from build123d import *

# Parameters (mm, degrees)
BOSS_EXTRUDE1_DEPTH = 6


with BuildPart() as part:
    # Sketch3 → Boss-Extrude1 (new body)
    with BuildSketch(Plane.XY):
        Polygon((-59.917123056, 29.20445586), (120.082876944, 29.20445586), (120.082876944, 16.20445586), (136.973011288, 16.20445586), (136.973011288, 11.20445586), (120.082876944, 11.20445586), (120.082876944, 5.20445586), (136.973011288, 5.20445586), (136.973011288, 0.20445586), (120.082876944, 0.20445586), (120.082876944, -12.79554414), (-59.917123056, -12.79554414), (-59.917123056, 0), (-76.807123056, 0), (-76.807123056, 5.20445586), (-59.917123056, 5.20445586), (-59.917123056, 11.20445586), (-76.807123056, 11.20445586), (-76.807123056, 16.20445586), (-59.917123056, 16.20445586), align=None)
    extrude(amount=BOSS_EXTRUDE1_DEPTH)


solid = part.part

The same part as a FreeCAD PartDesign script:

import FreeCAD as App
import Part
import Sketcher

V = App.Vector
Q = App.Units.Quantity

doc = App.newDocument("Part")
body = doc.addObject("PartDesign::Body", "Body")

# Sketch on XY plane
sketch1 = doc.addObject("Sketcher::SketchObject", "Sketch")
body.addObject(sketch1)
sketch1.AttachmentSupport = (doc.XY_Plane, [""])
sketch1.MapMode = "FlatFace"
sketch1.addGeometry(Part.LineSegment(V(120.082877, 29.204456, 0), V(-59.917123, 29.204456, 0)), False)
sketch1.addGeometry(Part.LineSegment(V(-59.917123, 29.204456, 0), V(-59.917123, 16.204456, 0)), False)
sketch1.addGeometry(Part.LineSegment(V(-59.917123, 16.204456, 0), V(-76.807123, 16.204456, 0)), False)
sketch1.addGeometry(Part.LineSegment(V(-76.807123, 16.204456, 0), V(-76.807123, 11.204456, 0)), False)
sketch1.addGeometry(Part.LineSegment(V(-76.807123, 11.204456, 0), V(-59.917123, 11.204456, 0)), False)
sketch1.addGeometry(Part.LineSegment(V(-59.917123, 11.204456, 0), V(-59.917123, 5.204456, 0)), False)
sketch1.addGeometry(Part.LineSegment(V(-59.917123, 5.204456, 0), V(-76.807123, 5.204456, 0)), False)
sketch1.addGeometry(Part.LineSegment(V(-76.807123, 5.204456, 0), V(-76.807123, 0, 0)), False)
sketch1.addGeometry(Part.LineSegment(V(-76.807123, 0, 0), V(-59.917123, 0, 0)), False)
sketch1.addGeometry(Part.LineSegment(V(-59.917123, 0, 0), V(-59.917123, -12.795544, 0)), False)
sketch1.addGeometry(Part.LineSegment(V(-59.917123, -12.795544, 0), V(120.082877, -12.795544, 0)), False)
sketch1.addGeometry(Part.LineSegment(V(120.082877, -12.795544, 0), V(120.082877, 0.204456, 0)), False)
sketch1.addGeometry(Part.LineSegment(V(120.082877, 0.204456, 0), V(136.973011, 0.204456, 0)), False)
sketch1.addGeometry(Part.LineSegment(V(136.973011, 0.204456, 0), V(136.973011, 5.204456, 0)), False)
sketch1.addGeometry(Part.LineSegment(V(136.973011, 5.204456, 0), V(120.082877, 5.204456, 0)), False)
sketch1.addGeometry(Part.LineSegment(V(120.082877, 5.204456, 0), V(120.082877, 11.204456, 0)), False)
sketch1.addGeometry(Part.LineSegment(V(120.082877, 11.204456, 0), V(136.973011, 11.204456, 0)), False)
sketch1.addGeometry(Part.LineSegment(V(136.973011, 11.204456, 0), V(136.973011, 16.204456, 0)), False)
sketch1.addGeometry(Part.LineSegment(V(136.973011, 16.204456, 0), V(120.082877, 16.204456, 0)), False)
sketch1.addGeometry(Part.LineSegment(V(120.082877, 16.204456, 0), V(120.082877, 29.204456, 0)), False)
sketch1.addConstraint(Sketcher.Constraint("Coincident", 0, 2, 1, 1))
sketch1.addConstraint(Sketcher.Constraint("Coincident", 1, 2, 2, 1))
sketch1.addConstraint(Sketcher.Constraint("Coincident", 2, 2, 3, 1))
sketch1.addConstraint(Sketcher.Constraint("Coincident", 3, 2, 4, 1))
sketch1.addConstraint(Sketcher.Constraint("Coincident", 4, 2, 5, 1))
sketch1.addConstraint(Sketcher.Constraint("Coincident", 5, 2, 6, 1))
sketch1.addConstraint(Sketcher.Constraint("Coincident", 6, 2, 7, 1))
sketch1.addConstraint(Sketcher.Constraint("Coincident", 7, 2, 8, 1))
sketch1.addConstraint(Sketcher.Constraint("Coincident", 8, 2, 9, 1))
sketch1.addConstraint(Sketcher.Constraint("Coincident", 9, 2, 10, 1))
sketch1.addConstraint(Sketcher.Constraint("Coincident", 10, 2, 11, 1))
sketch1.addConstraint(Sketcher.Constraint("Coincident", 11, 2, 12, 1))
sketch1.addConstraint(Sketcher.Constraint("Coincident", 12, 2, 13, 1))
sketch1.addConstraint(Sketcher.Constraint("Coincident", 13, 2, 14, 1))
sketch1.addConstraint(Sketcher.Constraint("Coincident", 14, 2, 15, 1))
sketch1.addConstraint(Sketcher.Constraint("Coincident", 15, 2, 16, 1))
sketch1.addConstraint(Sketcher.Constraint("Coincident", 16, 2, 17, 1))
sketch1.addConstraint(Sketcher.Constraint("Coincident", 17, 2, 18, 1))
sketch1.addConstraint(Sketcher.Constraint("Coincident", 18, 2, 19, 1))
sketch1.addConstraint(Sketcher.Constraint("Coincident", 19, 2, 0, 1))
sketch1.addConstraint(Sketcher.Constraint("Horizontal", 0))
sketch1.addConstraint(Sketcher.Constraint("Vertical", 1))
sketch1.addConstraint(Sketcher.Constraint("Horizontal", 2))
sketch1.addConstraint(Sketcher.Constraint("Vertical", 3))
sketch1.addConstraint(Sketcher.Constraint("Horizontal", 4))
sketch1.addConstraint(Sketcher.Constraint("Vertical", 5))
sketch1.addConstraint(Sketcher.Constraint("Horizontal", 6))
sketch1.addConstraint(Sketcher.Constraint("Vertical", 7))
sketch1.addConstraint(Sketcher.Constraint("Horizontal", 8))
sketch1.addConstraint(Sketcher.Constraint("Vertical", 9))
sketch1.addConstraint(Sketcher.Constraint("Horizontal", 10))
sketch1.addConstraint(Sketcher.Constraint("Vertical", 11))
sketch1.addConstraint(Sketcher.Constraint("Horizontal", 12))
sketch1.addConstraint(Sketcher.Constraint("Vertical", 13))
sketch1.addConstraint(Sketcher.Constraint("Horizontal", 14))
sketch1.addConstraint(Sketcher.Constraint("Vertical", 15))
sketch1.addConstraint(Sketcher.Constraint("Horizontal", 16))
sketch1.addConstraint(Sketcher.Constraint("Vertical", 17))
sketch1.addConstraint(Sketcher.Constraint("Horizontal", 18))
sketch1.addConstraint(Sketcher.Constraint("Vertical", 19))
sketch1.addConstraint(Sketcher.Constraint("PointOnObject", 7, 2, -1))
sketch1.addConstraint(Sketcher.Constraint("Horizontal", 6, 2, 13, 2))
sketch1.addConstraint(Sketcher.Constraint("Horizontal", 4, 2, 15, 2))
sketch1.addConstraint(Sketcher.Constraint("Horizontal", 2, 2, 17, 2))
sketch1.addConstraint(Sketcher.Constraint("Vertical", 1, 2, 4, 2))
sketch1.addConstraint(Sketcher.Constraint("Vertical", 3, 2, 6, 2))
sketch1.addConstraint(Sketcher.Constraint("Vertical", 5, 2, 8, 2))
sketch1.addConstraint(Sketcher.Constraint("Vertical", 11, 2, 14, 2))
sketch1.addConstraint(Sketcher.Constraint("Vertical", 13, 2, 16, 2))
sketch1.addConstraint(Sketcher.Constraint("Vertical", 15, 2, 18, 2))
sketch1.addConstraint(Sketcher.Constraint("Equal", 1, 11))
sketch1.addConstraint(Sketcher.Constraint("Equal", 3, 13))
sketch1.addConstraint(Sketcher.Constraint("DistanceX", 0, 2, 0, 1, Q("180 mm")))
sketch1.addConstraint(Sketcher.Constraint("DistanceY", 1, 2, 1, 1, Q("13 mm")))
sketch1.addConstraint(Sketcher.Constraint("DistanceY", 3, 2, 3, 1, Q("5 mm")))
sketch1.addConstraint(Sketcher.Constraint("DistanceY", 5, 2, 5, 1, Q("6 mm")))
sketch1.addConstraint(Sketcher.Constraint("DistanceX", 2, 2, 2, 1, Q("16.89 mm")))
sketch1.addConstraint(Sketcher.Constraint("DistanceX", 12, 1, 12, 2, Q("16.890134 mm")))
sketch1.addConstraint(Sketcher.Constraint("DistanceY", 7, 2, 7, 1, Q("5.204456 mm")))
sketch1.addConstraint(Sketcher.Constraint("DistanceX", -1, 1, 12, 2, Q("136.973011 mm")))
pad1 = doc.addObject("PartDesign::Pad", "Pad")
body.addObject(pad1)
pad1.Profile = sketch1
pad1.Length = 6

doc.recompute()
